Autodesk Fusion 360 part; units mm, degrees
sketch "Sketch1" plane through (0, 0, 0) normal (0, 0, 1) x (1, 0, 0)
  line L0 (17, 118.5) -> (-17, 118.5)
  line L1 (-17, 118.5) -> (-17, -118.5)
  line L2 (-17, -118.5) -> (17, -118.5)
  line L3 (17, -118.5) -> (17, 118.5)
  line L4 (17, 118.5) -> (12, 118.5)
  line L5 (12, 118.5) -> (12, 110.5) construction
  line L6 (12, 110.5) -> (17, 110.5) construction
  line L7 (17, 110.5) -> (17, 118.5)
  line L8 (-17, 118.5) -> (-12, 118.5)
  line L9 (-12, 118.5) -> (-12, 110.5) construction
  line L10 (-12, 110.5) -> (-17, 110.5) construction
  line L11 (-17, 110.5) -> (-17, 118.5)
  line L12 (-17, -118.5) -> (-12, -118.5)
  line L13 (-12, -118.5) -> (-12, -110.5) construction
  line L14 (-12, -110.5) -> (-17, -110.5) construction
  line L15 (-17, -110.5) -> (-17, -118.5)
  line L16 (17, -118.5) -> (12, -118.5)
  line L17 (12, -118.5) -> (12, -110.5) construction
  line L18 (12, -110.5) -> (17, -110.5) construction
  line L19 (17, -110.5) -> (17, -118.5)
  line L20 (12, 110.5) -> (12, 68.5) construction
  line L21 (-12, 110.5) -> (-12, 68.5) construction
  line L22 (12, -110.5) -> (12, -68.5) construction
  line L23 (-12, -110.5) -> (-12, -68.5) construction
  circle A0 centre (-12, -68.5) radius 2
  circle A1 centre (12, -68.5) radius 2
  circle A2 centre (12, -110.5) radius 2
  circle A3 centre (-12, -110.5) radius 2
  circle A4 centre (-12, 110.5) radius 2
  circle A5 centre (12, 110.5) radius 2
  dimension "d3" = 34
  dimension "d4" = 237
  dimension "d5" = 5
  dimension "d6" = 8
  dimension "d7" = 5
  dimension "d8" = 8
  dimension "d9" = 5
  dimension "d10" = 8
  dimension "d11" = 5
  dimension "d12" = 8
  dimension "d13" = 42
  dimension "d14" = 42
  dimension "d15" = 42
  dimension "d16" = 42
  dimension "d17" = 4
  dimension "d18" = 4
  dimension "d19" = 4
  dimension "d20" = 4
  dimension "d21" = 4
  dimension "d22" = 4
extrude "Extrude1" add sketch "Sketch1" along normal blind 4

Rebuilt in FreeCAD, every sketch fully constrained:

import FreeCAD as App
import Part
import Sketcher
Q = App.Units.Quantity


def add_polygon(sketch, points):
    """Adds a closed chain of lines whose ends are joined by coincident constraints."""
    first, n = sketch.GeometryCount, len(points)
    for a, b in zip(points, points[1:] + points[:1]):
        sketch.addGeometry(Part.LineSegment(App.Vector(*a, 0), App.Vector(*b, 0)), False)
    for i in range(n):
        sketch.addConstraint(Sketcher.Constraint("Coincident", first + i, 2, first + (i + 1) % n, 1))

doc = App.newDocument("Part")
body = doc.addObject("PartDesign::Body", "Body")

sketch1 = body.newObject("Sketcher::SketchObject", "Sketch")
sketch1.AttachmentSupport = (doc.getObject("XY_Plane"), [""])
sketch1.MapMode = "FlatFace"
add_polygon(sketch1, [(17, -118.5), (17, 118.5), (-17, 118.5), (-17, -118.5)])
sketch1.addGeometry(Part.Circle(App.Vector(-12, -110.5, 0), App.Vector(0, 0, 1), 2), False)
sketch1.addGeometry(Part.Circle(App.Vector(-12, -68.5, 0), App.Vector(0, 0, 1), 2), False)
sketch1.addGeometry(Part.Circle(App.Vector(12, -110.5, 0), App.Vector(0, 0, 1), 2), False)
sketch1.addGeometry(Part.Circle(App.Vector(12, -68.5, 0), App.Vector(0, 0, 1), 2), False)
sketch1.addGeometry(Part.Circle(App.Vector(-12, 110.5, 0), App.Vector(0, 0, 1), 2), False)
sketch1.addGeometry(Part.Circle(App.Vector(12, 110.5, 0), App.Vector(0, 0, 1), 2), False)
sketch1.addConstraint([
    Sketcher.Constraint("Vertical", 0),
    Sketcher.Constraint("Horizontal", 1),
    Sketcher.Constraint("Vertical", 2),
    Sketcher.Constraint("Horizontal", 3),
    Sketcher.Constraint("Equal", 4, 5),
    Sketcher.Constraint("Equal", 5, 6),
    Sketcher.Constraint("Equal", 6, 7),
    Sketcher.Constraint("Equal", 7, 8),
    Sketcher.Constraint("Equal", 8, 9),
    Sketcher.Constraint("Symmetric", 6, 3, 8, 3, -1, 1),
    Sketcher.Constraint("Symmetric", 4, 3, 9, 3, -1, 1),
    Sketcher.Constraint("Symmetric", 0, 2, 2, 2, -1, 1),
    Sketcher.Constraint("Symmetric", 4, 3, 6, 3, -2),
    Sketcher.Constraint("Symmetric", 5, 3, 7, 3, -2),
    Sketcher.Constraint("Vertical", 4, 3, 5, 3),
    Sketcher.Constraint("Diameter", 4, Q("4 mm")),
    Sketcher.Constraint("DistanceX", 1, 2, 1, 1, Q("34 mm")),
    Sketcher.Constraint("DistanceY", 0, 1, 0, 2, Q("237 mm")),
    Sketcher.Constraint("DistanceY", 4, 3, 5, 3, Q("42 mm")),
    Sketcher.Constraint("DistanceX", 9, 3, 0, 2, Q("5 mm")),
    Sketcher.Constraint("DistanceY", 9, 3, 0, 2, Q("8 mm")),
])
pad1 = body.newObject("PartDesign::Pad", "Pad")
pad1.Profile = sketch1
pad1.Length = 4

doc.recompute()
